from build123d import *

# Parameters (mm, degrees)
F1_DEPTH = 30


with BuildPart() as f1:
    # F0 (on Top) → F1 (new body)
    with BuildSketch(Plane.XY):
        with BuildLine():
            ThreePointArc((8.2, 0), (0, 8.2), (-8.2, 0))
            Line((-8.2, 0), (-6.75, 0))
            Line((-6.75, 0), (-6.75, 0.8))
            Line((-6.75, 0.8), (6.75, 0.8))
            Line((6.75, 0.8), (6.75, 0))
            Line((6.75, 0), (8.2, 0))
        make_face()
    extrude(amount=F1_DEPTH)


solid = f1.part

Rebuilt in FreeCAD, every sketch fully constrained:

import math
import FreeCAD as App
import Part
import Sketcher
from FreeCAD import Vector

doc = App.newDocument("Part")
body = doc.addObject("PartDesign::Body", "Body")

sketch1 = body.newObject("Sketcher::SketchObject", "Sketch")
sketch1.AttachmentSupport = (doc.getObject("XY_Plane"), [""])
sketch1.MapMode = "FlatFace"
sketch1.addGeometry([
    Part.ArcOfCircle(Part.Circle(Vector(0, 0, 0), Vector(0, 0, 1), 8.2), math.radians(0), math.radians(180)),
    Part.LineSegment(Vector(-8.2, 0, 0), Vector(-6.8, 0, 0)),
    Part.LineSegment(Vector(-6.8, 0, 0), Vector(-6.8, 0.8, 0)),
    Part.LineSegment(Vector(-6.8, 0.8, 0), Vector(6.8, 0.8, 0)),
    Part.LineSegment(Vector(6.8, 0.8, 0), Vector(6.8, 0, 0)),
    Part.LineSegment(Vector(6.8, 0, 0), Vector(8.2, 0, 0)),
], False)
sketch1.addConstraint([
    Sketcher.Constraint("Coincident", 0, 2, 1, 1),
    Sketcher.Constraint("Coincident", 1, 2, 2, 1),
    Sketcher.Constraint("Coincident", 2, 2, 3, 1),
    Sketcher.Constraint("Coincident", 3, 2, 4, 1),
    Sketcher.Constraint("Coincident", 4, 2, 5, 1),
    Sketcher.Constraint("Coincident", 5, 2, 0, 1),
    Sketcher.Constraint("Horizontal", 1),
    Sketcher.Constraint("Vertical", 2),
    Sketcher.Constraint("Horizontal", 3),
    Sketcher.Constraint("Vertical", 4),
    Sketcher.Constraint("Horizontal", 5),
    Sketcher.Constraint("Coincident", 0, 3, -1, 1),
    Sketcher.Constraint("Symmetric", 1, 2, 4, 2, -1, 1),
    Sketcher.Constraint("PointOnObject", 0, 2, -1),
    Sketcher.Constraint("Radius", 0, 8.2),
    Sketcher.Constraint("DistanceX", 3, 1, 3, 2, 13.5),
    Sketcher.Constraint("DistanceY", 2, 1, 2, 2, 0.8),
])
pad1 = body.newObject("PartDesign::Pad", "Pad")
pad1.Profile = sketch1
pad1.Length = 30

doc.recompute()
